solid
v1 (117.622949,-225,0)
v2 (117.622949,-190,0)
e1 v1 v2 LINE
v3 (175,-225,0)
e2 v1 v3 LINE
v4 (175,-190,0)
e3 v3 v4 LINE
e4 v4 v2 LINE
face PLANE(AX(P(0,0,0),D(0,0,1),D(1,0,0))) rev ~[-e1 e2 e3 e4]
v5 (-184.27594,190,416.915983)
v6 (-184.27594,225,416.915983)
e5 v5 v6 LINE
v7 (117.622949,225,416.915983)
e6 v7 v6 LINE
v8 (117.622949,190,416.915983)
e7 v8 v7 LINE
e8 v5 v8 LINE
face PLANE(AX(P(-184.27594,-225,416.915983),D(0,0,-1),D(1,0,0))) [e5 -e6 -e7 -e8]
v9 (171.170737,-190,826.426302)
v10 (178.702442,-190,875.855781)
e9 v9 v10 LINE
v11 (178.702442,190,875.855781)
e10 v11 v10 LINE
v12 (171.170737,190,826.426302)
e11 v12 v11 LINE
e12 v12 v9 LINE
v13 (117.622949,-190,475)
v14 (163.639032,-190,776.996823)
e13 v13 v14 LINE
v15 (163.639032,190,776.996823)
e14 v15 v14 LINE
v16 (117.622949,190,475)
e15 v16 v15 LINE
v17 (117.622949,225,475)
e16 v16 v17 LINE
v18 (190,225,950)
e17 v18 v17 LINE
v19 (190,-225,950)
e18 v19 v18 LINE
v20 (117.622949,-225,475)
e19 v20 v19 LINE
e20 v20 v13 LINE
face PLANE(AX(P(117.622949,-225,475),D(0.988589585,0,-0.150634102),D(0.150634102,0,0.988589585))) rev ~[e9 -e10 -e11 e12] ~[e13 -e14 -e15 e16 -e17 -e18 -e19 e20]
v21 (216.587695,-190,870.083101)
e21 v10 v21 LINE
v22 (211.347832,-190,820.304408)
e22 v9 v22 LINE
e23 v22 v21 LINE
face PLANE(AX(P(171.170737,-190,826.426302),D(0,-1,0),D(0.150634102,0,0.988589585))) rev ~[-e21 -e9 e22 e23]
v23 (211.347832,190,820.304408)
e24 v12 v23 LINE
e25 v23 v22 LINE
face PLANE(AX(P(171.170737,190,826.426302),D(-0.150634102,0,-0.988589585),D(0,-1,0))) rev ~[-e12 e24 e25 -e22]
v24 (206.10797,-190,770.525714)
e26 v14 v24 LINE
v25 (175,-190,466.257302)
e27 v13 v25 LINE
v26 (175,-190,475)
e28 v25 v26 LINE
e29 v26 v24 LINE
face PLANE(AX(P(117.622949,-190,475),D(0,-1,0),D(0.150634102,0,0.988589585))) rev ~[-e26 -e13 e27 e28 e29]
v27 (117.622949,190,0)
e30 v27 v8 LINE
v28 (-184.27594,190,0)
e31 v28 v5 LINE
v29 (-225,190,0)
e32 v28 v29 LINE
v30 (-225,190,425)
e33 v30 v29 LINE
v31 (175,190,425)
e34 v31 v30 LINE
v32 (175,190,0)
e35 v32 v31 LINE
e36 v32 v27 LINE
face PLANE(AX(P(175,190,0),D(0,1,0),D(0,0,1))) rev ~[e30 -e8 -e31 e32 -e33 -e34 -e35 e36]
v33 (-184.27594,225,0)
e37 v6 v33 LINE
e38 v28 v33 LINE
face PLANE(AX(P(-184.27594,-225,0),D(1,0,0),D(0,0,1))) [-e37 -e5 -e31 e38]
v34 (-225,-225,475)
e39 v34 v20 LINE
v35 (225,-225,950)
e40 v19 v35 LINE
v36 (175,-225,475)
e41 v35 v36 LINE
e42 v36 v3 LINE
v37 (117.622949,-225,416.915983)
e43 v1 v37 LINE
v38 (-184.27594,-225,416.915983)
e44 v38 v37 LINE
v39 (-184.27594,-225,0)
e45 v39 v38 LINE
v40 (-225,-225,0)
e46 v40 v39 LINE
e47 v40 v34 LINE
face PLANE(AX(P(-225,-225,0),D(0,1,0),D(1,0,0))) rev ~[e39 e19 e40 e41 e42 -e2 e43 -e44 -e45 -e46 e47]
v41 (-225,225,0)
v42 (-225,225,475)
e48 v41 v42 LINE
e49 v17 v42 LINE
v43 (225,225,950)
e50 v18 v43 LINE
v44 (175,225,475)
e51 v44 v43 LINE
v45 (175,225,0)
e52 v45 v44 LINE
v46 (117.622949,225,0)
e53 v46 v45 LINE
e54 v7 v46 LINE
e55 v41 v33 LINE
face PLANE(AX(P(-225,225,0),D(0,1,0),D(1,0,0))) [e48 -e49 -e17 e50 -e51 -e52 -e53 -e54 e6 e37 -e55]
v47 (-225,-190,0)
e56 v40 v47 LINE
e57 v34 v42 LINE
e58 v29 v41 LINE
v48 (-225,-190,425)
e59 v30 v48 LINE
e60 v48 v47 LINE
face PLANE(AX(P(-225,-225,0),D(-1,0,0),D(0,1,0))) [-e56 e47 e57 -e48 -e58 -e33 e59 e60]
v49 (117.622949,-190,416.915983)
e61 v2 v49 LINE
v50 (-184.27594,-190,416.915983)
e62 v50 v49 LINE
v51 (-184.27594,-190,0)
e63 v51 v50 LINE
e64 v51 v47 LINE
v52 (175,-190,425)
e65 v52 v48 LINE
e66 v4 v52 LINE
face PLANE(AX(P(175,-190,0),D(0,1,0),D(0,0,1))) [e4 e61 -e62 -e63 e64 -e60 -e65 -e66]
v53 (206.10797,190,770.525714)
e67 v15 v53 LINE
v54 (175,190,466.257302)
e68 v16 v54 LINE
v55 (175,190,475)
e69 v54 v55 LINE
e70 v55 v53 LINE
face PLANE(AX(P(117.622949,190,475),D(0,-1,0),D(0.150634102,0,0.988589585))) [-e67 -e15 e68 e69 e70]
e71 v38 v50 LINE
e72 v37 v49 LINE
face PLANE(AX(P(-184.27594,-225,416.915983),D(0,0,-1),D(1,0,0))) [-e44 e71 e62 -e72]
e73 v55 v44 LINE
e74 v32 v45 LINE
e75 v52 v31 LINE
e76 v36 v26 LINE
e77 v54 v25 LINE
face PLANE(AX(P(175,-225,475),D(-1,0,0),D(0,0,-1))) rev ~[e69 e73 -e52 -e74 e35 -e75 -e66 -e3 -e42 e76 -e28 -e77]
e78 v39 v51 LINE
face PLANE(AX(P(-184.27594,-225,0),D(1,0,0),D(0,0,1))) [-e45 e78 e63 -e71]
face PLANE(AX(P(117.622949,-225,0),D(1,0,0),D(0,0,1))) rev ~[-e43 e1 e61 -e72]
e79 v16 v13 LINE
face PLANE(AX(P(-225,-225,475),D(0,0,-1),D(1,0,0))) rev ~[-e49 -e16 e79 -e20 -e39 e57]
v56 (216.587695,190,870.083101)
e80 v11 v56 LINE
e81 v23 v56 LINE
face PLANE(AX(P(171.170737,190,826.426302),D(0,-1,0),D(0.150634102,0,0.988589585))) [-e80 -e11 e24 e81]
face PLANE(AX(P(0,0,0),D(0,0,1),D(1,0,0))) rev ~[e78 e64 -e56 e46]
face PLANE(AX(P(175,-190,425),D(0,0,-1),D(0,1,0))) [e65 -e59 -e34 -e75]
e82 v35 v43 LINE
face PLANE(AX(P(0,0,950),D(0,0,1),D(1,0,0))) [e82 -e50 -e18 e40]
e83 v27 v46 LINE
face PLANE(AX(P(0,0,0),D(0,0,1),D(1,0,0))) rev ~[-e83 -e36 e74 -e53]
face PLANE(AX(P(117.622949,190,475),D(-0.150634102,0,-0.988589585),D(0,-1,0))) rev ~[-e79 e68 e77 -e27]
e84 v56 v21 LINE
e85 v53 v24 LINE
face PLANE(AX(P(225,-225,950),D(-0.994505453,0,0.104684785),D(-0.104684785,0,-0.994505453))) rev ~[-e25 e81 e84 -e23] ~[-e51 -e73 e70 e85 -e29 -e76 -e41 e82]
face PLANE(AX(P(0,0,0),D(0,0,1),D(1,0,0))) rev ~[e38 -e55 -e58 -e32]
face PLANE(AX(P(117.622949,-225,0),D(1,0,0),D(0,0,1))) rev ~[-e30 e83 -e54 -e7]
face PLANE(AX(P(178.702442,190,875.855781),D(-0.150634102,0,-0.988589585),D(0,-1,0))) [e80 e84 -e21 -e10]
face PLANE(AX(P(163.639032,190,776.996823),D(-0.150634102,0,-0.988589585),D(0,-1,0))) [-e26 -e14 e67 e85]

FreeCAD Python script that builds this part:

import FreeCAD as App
import Part
import Sketcher
from FreeCAD import Vector
Q = App.Units.Quantity


def add_polygon(sketch, points):
    """Adds a closed chain of lines whose ends are joined by coincident constraints."""
    first, n = sketch.GeometryCount, len(points)
    for a, b in zip(points, points[1:] + points[:1]):
        sketch.addGeometry(Part.LineSegment(App.Vector(*a, 0), App.Vector(*b, 0)), False)
    for i in range(n):
        sketch.addConstraint(Sketcher.Constraint("Coincident", first + i, 2, first + (i + 1) % n, 1))

doc = App.newDocument("Part")
body = doc.addObject("PartDesign::Body", "Body")

# Sketch on XY plane
sketch1 = body.newObject("Sketcher::SketchObject", "Sketch")
sketch1.AttachmentSupport = (doc.getObject("XY_Plane"), [""])
sketch1.MapMode = "FlatFace"
add_polygon(sketch1, [(-225, 225), (-225, -225), (225, -225), (225, 225)])  # lines 0-3
sketch1.addConstraint(Sketcher.Constraint("Vertical", 0))
sketch1.addConstraint(Sketcher.Constraint("Horizontal", 1))
sketch1.addConstraint(Sketcher.Constraint("Vertical", 2))
sketch1.addConstraint(Sketcher.Constraint("Horizontal", 3))
sketch1.addConstraint(Sketcher.Constraint("Symmetric", 0, 2, 2, 2, -1, 1))
sketch1.addConstraint(Sketcher.Constraint("Equal", 3, 0))
sketch1.addConstraint(Sketcher.Constraint("DistanceX", 1, 1, 1, 2, Q("450 mm")))
pad1 = body.newObject("PartDesign::Pad", "Pad")
pad1.Profile = sketch1
pad1.Length = 950

# Sketch on XZ plane
sketch2 = body.newObject("Sketcher::SketchObject", "Sketch001")
sketch2.AttachmentSupport = (doc.getObject("XZ_Plane"), [""])
sketch2.MapMode = "FlatFace"
sketch2.AttachmentOffset = App.Placement(Vector(0, 0, 225), App.Rotation())
add_polygon(sketch2, [(175, 475), (175, 0), (225, 0), (225, 950)])  # lines 0-3
add_polygon(sketch2, [(-225, 475), (118, 475), (190, 950), (-225, 950)])  # lines 4-7
add_polygon(sketch2, [(-184, 417), (-184, 0), (118, 0), (118, 417)])  # lines 8-11
sketch2.addConstraint(Sketcher.Constraint("Vertical", 0))
sketch2.addConstraint(Sketcher.Constraint("Horizontal", 1))
sketch2.addConstraint(Sketcher.Constraint("Vertical", 2))
sketch2.addConstraint(Sketcher.Constraint("Horizontal", 4))
sketch2.addConstraint(Sketcher.Constraint("Horizontal", 6))
sketch2.addConstraint(Sketcher.Constraint("Vertical", 7))
sketch2.addConstraint(Sketcher.Constraint("Vertical", 8))
sketch2.addConstraint(Sketcher.Constraint("Horizontal", 9))
sketch2.addConstraint(Sketcher.Constraint("Vertical", 10))
sketch2.addConstraint(Sketcher.Constraint("Horizontal", 11))
sketch2.addConstraint(Sketcher.Constraint("Symmetric", 2, 2, 6, 2, -2))
sketch2.addConstraint(Sketcher.Constraint("PointOnObject", 0, 2, -1))
sketch2.addConstraint(Sketcher.Constraint("PointOnObject", 8, 2, -1))
sketch2.addConstraint(Sketcher.Constraint("Horizontal", 3, 2, 4, 2))
sketch2.addConstraint(Sketcher.Constraint("Vertical", 4, 2, 9, 2))
sketch2.addConstraint(Sketcher.Constraint("Equal", 0, 7))
sketch2.addConstraint(Sketcher.Constraint("DistanceX", 1, 1, 1, 2, Q("50 mm")))
sketch2.addConstraint(Sketcher.Constraint("DistanceX", 6, 2, 6, 1, Q("415 mm")))
sketch2.addConstraint(Sketcher.Constraint("DistanceY", 0, 2, 0, 1, Q("475 mm")))
sketch2.addConstraint(Sketcher.Constraint("DistanceX", -1, 1, 0, 2, Q("175 mm")))
sketch2.addConstraint(Sketcher.Constraint("DistanceX", 4, 1, 4, 2, Q("342.622949 mm")))
sketch2.addConstraint(Sketcher.Constraint("DistanceX", 9, 1, 9, 2, Q("301.898889 mm")))
sketch2.addConstraint(Sketcher.Constraint("DistanceY", 8, 2, 8, 1, Q("416.915983 mm")))
pocket1 = body.newObject("PartDesign::Pocket", "Pocket")
pocket1.Profile = sketch2
pocket1.Type = "ThroughAll"

# Sketch on YZ plane
sketch3 = body.newObject("Sketcher::SketchObject", "Sketch002")
sketch3.AttachmentSupport = (doc.getObject("YZ_Plane"), [""])
sketch3.MapMode = "FlatFace"
sketch3.AttachmentOffset = App.Placement(Vector(0, 0, 175), App.Rotation())
add_polygon(sketch3, [(-190, 425), (-190, 0), (190, 0), (190, 425)])  # lines 0-3
sketch3.addConstraint(Sketcher.Constraint("Vertical", 0))
sketch3.addConstraint(Sketcher.Constraint("Horizontal", 1))
sketch3.addConstraint(Sketcher.Constraint("Vertical", 2))
sketch3.addConstraint(Sketcher.Constraint("Horizontal", 3))
sketch3.addConstraint(Sketcher.Constraint("Symmetric", 0, 2, 1, 2, -1, 1))
sketch3.addConstraint(Sketcher.Constraint("DistanceX", 1, 1, 1, 2, Q("380 mm")))
sketch3.addConstraint(Sketcher.Constraint("DistanceY", 0, 2, 0, 1, Q("425 mm")))
pocket2 = body.newObject("PartDesign::Pocket", "Pocket001")
pocket2.Profile = sketch3
pocket2.Type = "ThroughAll"

# Sketch on an angled plane
sketch4 = body.newObject("Sketcher::SketchObject", "Sketch003")
sketch4.Placement = App.Placement(Vector(44.21924, 0, -6.737807), App.Rotation(Vector(0, -1, 0), Vector(0.150634102, 0, 0.988589585), Vector(-0.988589585, 0, 0.150634102), "ZXY"))
add_polygon(sketch4, [(-190, 893), (-190, 843), (190, 843), (190, 893)])  # lines 0-3
add_polygon(sketch4, [(-190, 793), (-190, 487), (190, 487), (190, 793)])  # lines 4-7
sketch4.addConstraint(Sketcher.Constraint("Vertical", 0))
sketch4.addConstraint(Sketcher.Constraint("Horizontal", 1))
sketch4.addConstraint(Sketcher.Constraint("Vertical", 2))
sketch4.addConstraint(Sketcher.Constraint("Horizontal", 3))
sketch4.addConstraint(Sketcher.Constraint("Vertical", 4))
sketch4.addConstraint(Sketcher.Constraint("Horizontal", 5))
sketch4.addConstraint(Sketcher.Constraint("Vertical", 6))
sketch4.addConstraint(Sketcher.Constraint("Horizontal", 7))
sketch4.addConstraint(Sketcher.Constraint("Vertical", 3, 2, 4, 2))
sketch4.addConstraint(Sketcher.Constraint("Vertical", 2, 2, 5, 2))
sketch4.addConstraint(Sketcher.Constraint("DistanceX", 1, 1, 1, 2, Q("380 mm")))
sketch4.addConstraint(Sketcher.Constraint("DistanceY", 0, 2, 0, 1, Q("50 mm")))
sketch4.addConstraint(Sketcher.Constraint("DistanceX", 0, 2, -1, 1, Q("190 mm")))
sketch4.addConstraint(Sketcher.Constraint("DistanceY", 6, 2, 1, 2, Q("50 mm")))
sketch4.addConstraint(Sketcher.Constraint("DistanceY", 4, 2, 4, 1, Q("305.482505 mm")))
sketch4.addConstraint(Sketcher.Constraint("DistanceY", -1, 1, 4, 2, Q("487.29808 mm")))
pocket3 = body.newObject("PartDesign::Pocket", "Pocket002")
pocket3.Profile = sketch4
pocket3.Type = "ThroughAll"

doc.recompute()
